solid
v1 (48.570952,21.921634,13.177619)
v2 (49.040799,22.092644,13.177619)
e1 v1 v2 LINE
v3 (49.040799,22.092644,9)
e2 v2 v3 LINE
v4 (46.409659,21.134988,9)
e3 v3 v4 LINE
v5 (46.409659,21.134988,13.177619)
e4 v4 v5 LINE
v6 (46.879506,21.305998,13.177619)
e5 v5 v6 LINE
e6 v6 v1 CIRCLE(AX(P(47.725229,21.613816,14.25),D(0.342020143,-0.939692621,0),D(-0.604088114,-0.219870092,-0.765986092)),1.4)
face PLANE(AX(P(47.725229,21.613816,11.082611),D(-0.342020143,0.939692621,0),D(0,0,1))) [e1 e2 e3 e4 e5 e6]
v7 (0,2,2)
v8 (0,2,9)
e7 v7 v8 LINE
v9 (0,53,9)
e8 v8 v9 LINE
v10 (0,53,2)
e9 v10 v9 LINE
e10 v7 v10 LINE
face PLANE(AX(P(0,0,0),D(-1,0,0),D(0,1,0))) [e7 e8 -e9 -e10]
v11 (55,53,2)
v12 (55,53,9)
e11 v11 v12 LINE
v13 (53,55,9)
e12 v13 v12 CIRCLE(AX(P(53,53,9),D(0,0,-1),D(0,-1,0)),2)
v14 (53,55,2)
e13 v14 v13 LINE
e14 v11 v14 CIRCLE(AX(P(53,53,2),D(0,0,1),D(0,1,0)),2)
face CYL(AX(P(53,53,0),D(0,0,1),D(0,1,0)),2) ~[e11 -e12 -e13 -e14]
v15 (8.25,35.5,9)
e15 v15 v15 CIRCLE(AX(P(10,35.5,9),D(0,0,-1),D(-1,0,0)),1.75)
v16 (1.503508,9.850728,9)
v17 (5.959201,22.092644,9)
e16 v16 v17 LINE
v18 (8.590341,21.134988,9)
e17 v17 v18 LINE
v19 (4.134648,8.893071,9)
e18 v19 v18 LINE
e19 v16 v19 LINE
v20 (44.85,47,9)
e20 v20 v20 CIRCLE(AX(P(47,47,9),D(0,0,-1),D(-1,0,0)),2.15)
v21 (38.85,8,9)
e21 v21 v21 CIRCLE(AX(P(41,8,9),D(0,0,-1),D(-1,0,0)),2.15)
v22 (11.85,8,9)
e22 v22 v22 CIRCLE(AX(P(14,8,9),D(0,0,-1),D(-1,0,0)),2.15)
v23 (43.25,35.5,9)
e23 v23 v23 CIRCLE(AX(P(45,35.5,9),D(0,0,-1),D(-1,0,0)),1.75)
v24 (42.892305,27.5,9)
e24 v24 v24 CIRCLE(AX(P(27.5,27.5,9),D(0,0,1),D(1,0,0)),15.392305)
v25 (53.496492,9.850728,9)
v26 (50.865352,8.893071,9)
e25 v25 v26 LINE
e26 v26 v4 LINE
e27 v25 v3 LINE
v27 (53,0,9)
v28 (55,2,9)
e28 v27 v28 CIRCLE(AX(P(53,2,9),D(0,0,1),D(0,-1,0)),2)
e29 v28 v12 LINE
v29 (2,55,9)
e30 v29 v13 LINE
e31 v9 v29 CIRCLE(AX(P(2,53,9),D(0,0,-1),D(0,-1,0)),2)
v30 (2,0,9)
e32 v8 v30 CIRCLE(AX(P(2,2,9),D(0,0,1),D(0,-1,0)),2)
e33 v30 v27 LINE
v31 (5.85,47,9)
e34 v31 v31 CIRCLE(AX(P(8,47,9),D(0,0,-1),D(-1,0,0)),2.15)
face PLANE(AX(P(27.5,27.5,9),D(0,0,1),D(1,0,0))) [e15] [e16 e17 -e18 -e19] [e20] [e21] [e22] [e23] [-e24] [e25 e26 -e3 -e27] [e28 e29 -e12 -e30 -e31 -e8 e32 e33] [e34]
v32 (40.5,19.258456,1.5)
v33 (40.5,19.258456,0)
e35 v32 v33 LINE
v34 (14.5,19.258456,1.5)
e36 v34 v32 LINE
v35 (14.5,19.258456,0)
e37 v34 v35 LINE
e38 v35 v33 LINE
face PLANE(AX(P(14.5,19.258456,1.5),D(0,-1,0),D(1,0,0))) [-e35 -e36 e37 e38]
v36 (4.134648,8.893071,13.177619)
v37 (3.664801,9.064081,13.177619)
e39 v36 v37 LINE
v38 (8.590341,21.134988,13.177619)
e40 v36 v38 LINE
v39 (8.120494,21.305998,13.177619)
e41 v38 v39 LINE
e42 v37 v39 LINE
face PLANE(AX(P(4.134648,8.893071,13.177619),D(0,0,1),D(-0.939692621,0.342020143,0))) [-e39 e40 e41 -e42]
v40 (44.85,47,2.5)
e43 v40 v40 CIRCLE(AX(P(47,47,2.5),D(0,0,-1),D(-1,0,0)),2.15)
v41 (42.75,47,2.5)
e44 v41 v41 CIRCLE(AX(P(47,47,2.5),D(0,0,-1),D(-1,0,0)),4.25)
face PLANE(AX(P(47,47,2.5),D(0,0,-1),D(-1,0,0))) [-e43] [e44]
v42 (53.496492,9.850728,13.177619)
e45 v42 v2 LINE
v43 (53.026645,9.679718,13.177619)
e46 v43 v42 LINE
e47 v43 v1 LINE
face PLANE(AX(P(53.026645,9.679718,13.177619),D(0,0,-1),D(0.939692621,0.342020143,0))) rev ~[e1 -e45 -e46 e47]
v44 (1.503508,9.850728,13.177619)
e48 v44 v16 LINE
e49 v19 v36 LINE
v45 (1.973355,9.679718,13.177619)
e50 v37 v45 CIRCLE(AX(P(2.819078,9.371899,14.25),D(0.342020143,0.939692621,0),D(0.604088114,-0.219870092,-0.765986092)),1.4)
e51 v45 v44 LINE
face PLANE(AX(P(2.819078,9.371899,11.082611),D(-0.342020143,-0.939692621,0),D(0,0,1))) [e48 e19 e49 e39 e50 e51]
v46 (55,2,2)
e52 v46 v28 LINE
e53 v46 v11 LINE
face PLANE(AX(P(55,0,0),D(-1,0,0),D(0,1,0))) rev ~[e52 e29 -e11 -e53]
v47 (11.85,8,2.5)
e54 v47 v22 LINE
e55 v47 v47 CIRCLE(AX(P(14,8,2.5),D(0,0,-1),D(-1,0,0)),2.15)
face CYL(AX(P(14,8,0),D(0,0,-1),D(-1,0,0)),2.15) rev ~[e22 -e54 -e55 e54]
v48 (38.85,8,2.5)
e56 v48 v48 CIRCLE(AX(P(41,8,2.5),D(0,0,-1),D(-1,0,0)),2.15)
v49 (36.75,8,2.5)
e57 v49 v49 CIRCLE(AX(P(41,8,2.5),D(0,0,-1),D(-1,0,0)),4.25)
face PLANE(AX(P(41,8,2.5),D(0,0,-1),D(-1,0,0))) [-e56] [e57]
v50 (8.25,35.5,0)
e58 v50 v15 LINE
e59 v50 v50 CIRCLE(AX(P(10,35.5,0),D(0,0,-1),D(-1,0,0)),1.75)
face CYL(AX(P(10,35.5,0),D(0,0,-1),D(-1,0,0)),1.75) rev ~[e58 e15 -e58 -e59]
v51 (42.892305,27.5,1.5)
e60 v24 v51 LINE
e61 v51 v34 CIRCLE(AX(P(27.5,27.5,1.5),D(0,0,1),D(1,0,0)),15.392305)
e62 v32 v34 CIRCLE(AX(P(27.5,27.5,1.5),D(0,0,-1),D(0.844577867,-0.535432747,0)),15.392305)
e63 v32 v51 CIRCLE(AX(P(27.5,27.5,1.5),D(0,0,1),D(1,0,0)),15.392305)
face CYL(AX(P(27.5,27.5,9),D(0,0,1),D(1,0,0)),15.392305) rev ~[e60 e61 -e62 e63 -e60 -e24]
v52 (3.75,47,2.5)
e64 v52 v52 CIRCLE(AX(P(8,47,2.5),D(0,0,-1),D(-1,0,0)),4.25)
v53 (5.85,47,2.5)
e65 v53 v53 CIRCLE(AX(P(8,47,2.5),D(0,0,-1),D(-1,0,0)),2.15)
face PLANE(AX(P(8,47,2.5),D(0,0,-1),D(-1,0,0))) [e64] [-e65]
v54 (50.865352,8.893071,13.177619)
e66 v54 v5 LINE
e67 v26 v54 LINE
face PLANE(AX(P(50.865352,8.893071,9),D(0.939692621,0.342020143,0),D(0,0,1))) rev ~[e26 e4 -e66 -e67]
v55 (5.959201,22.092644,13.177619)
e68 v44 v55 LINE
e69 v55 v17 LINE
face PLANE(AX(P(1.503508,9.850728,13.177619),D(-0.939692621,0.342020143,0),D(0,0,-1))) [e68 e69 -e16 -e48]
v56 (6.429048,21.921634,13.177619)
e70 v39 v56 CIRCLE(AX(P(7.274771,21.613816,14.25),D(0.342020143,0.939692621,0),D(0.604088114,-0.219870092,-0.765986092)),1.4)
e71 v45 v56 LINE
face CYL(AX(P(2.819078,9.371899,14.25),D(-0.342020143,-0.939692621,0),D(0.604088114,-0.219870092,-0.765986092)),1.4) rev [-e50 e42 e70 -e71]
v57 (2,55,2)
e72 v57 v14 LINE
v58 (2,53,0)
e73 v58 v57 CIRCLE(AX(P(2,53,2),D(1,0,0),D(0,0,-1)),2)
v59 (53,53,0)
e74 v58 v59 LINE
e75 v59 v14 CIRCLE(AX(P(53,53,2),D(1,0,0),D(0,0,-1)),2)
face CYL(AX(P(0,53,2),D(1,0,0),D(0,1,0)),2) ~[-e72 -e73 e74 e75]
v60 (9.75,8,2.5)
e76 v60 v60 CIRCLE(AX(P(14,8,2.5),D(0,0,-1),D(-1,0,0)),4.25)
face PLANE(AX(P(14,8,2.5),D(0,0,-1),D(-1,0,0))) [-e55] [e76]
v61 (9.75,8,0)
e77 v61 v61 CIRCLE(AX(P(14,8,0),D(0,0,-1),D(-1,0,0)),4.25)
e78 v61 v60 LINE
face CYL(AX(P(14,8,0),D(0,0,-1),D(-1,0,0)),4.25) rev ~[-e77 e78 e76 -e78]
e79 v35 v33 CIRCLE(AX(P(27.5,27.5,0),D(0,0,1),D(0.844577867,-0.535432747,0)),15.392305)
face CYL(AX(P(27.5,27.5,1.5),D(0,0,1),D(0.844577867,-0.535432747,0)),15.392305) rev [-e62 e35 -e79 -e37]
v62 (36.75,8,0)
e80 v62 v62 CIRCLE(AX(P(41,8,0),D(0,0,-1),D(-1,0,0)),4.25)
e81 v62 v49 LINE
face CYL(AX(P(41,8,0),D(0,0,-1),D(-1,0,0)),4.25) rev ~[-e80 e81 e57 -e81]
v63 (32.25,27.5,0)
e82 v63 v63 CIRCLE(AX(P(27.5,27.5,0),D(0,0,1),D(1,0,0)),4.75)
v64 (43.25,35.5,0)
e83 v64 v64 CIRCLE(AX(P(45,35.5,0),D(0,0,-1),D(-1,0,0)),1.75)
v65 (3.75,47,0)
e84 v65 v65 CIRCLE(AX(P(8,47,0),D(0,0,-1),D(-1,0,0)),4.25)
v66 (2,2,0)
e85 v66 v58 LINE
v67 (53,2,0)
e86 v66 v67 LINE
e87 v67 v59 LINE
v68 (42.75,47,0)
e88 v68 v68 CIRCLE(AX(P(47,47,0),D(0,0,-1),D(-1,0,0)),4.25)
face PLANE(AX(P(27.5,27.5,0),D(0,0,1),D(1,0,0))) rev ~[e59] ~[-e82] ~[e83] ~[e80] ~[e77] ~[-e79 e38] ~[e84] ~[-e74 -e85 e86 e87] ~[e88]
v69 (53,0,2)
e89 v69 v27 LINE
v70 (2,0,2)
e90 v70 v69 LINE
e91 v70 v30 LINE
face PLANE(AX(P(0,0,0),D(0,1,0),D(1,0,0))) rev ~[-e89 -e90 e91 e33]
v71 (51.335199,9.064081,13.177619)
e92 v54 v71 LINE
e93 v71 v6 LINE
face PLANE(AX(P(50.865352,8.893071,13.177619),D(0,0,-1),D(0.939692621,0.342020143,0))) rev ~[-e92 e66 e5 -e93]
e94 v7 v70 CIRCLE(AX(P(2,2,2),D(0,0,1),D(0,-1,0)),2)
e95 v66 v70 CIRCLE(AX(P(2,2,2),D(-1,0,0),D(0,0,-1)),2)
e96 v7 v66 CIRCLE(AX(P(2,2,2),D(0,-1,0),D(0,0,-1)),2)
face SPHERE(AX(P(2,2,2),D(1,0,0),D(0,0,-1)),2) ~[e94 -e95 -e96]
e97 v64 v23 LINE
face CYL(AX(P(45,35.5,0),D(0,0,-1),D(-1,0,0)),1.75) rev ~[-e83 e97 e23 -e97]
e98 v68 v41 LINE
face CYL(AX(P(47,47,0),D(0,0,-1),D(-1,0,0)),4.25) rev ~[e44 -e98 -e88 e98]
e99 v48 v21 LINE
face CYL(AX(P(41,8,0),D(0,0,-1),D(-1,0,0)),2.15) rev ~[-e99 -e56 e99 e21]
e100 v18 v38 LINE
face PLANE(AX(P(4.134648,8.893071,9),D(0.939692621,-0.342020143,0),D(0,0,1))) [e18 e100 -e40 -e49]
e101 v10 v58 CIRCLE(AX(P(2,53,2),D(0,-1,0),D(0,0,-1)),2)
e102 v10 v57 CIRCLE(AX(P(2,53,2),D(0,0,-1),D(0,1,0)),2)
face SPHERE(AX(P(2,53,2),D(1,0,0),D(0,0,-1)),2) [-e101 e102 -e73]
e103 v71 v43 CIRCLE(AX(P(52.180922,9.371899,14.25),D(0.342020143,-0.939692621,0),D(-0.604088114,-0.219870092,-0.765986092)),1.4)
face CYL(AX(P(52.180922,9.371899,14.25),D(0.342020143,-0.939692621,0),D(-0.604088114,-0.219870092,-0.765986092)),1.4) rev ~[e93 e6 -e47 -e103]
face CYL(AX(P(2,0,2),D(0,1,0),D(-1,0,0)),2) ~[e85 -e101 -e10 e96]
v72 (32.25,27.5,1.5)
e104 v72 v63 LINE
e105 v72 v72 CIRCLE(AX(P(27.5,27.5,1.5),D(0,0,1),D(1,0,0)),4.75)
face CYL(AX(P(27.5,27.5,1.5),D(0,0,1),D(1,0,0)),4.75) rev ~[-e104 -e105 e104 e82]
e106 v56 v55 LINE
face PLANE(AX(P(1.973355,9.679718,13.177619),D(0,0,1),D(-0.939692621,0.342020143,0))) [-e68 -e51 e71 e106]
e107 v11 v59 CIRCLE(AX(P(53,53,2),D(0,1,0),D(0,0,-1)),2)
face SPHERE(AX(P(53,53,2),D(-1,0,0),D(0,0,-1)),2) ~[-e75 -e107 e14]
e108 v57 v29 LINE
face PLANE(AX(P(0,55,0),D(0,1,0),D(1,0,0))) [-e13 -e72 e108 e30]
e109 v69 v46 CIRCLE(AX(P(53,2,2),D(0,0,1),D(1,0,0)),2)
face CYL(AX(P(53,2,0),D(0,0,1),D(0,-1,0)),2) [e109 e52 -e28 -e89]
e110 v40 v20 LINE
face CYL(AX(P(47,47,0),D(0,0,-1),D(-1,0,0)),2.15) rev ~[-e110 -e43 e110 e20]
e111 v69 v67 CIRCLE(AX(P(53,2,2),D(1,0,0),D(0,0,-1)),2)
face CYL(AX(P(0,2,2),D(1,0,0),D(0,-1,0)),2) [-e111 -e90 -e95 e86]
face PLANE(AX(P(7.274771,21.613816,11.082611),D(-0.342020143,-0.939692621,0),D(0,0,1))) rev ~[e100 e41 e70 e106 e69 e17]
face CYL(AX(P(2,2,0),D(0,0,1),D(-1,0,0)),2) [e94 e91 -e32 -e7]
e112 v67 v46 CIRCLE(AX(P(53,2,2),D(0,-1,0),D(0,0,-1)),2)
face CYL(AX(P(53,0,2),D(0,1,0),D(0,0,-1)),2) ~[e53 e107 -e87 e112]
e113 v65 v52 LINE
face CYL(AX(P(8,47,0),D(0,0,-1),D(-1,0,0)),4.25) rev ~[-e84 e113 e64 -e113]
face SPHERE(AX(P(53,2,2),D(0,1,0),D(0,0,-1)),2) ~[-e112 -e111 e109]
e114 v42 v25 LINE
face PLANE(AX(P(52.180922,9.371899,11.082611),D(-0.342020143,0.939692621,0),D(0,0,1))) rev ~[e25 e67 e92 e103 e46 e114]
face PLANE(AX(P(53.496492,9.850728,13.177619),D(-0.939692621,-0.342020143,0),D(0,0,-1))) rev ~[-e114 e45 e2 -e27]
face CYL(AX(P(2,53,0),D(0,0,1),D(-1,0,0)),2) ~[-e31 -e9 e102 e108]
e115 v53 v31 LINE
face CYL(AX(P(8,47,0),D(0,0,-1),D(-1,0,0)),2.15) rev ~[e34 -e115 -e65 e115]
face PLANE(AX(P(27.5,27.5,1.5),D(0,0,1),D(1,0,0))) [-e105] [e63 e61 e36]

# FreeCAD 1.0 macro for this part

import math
import FreeCAD as App
import Part
import Sketcher

V = App.Vector


def edges_at(feature, points):
    """Names of the edges that pass closest to the given points."""
    edges = feature.Shape.Edges
    near = lambda p: min(range(len(edges)), key=lambda i: edges[i].distToShape(Part.Vertex(*p))[0])
    return sorted({f"Edge{near(p) + 1}" for p in points})

doc = App.newDocument("Part")
body = doc.addObject("PartDesign::Body", "Body")

sketch1 = body.newObject("Sketcher::SketchObject", "Sketch")
sketch1.AttachmentSupport = (doc.getObject("XY_Plane"), [""])
sketch1.MapMode = "FlatFace"
sketch1.addGeometry([
    Part.LineSegment(V(0, 55, 0), V(0, 0, 0)),
    Part.LineSegment(V(0, 0, 0), V(55, 0, 0)),
    Part.LineSegment(V(55, 0, 0), V(55, 55, 0)),
    Part.LineSegment(V(55, 55, 0), V(0, 55, 0)),
], False)
sketch1.addConstraint([
    Sketcher.Constraint("Coincident", 0, 2, 1, 1),
    Sketcher.Constraint("Coincident", 1, 2, 2, 1),
    Sketcher.Constraint("Coincident", 2, 2, 3, 1),
    Sketcher.Constraint("Coincident", 3, 2, 0, 1),
    Sketcher.Constraint("Vertical", 0),
    Sketcher.Constraint("Horizontal", 1),
    Sketcher.Constraint("Vertical", 2),
    Sketcher.Constraint("Horizontal", 3),
    Sketcher.Constraint("Coincident", 0, 2, -1, 1),
    Sketcher.Constraint("Equal", 3, 0),
    Sketcher.Constraint("DistanceX", 1, 1, 1, 2, 55.0),
])
pad1 = body.newObject("PartDesign::Pad", "Pad")
pad1.Profile = sketch1
pad1.Length = 9

sketch2 = body.newObject("Sketcher::SketchObject", "Sketch001")
sketch2.AttachmentSupport = (doc.getObject("XY_Plane"), [""])
sketch2.MapMode = "FlatFace"
sketch2.addGeometry([
    Part.Circle(V(45, 35.5, 0), V(0, 0, 1), 1.8),
    Part.Circle(V(47, 47, 0), V(0, 0, 1), 2.1),
    Part.Circle(V(8, 47, 0), V(0, 0, 1), 2.1),
    Part.Circle(V(14, 8, 0), V(0, 0, 1), 2.1),
    Part.Circle(V(41, 8, 0), V(0, 0, 1), 2.1),
    Part.Circle(V(10, 35.5, 0), V(0, 0, 1), 1.8),
], False)
sketch2.addConstraint([
    Sketcher.Constraint("Equal", 1, 2),
    Sketcher.Constraint("Equal", 2, 3),
    Sketcher.Constraint("Equal", 3, 4),
    Sketcher.Constraint("Equal", 0, 5),
    Sketcher.Constraint("Horizontal", 1, 3, 2, 3),
    Sketcher.Constraint("Horizontal", 3, 3, 4, 3),
    Sketcher.Constraint("Horizontal", 0, 3, 5, 3),
    Sketcher.Constraint("Diameter", 0, 3.5),
    Sketcher.Constraint("Diameter", 1, 4.3),
    Sketcher.Constraint("DistanceX", -1, 1, 0, 3, 45.0),
    Sketcher.Constraint("DistanceX", -1, 1, 1, 3, 47.0),
    Sketcher.Constraint("DistanceY", -1, 1, 1, 3, 47.0),
    Sketcher.Constraint("DistanceX", -1, 1, 2, 3, 8.0),
    Sketcher.Constraint("DistanceX", -1, 1, 3, 3, 14.0),
    Sketcher.Constraint("DistanceY", -1, 1, 3, 3, 8.0),
    Sketcher.Constraint("DistanceX", -1, 1, 4, 3, 41.0),
    Sketcher.Constraint("DistanceX", -1, 1, 5, 3, 10.0),
    Sketcher.Constraint("DistanceY", -1, 1, 0, 3, 35.5),
])
pocket1 = body.newObject("PartDesign::Pocket", "Pocket")
pocket1.Profile = sketch2
pocket1.Type = "ThroughAll"
pocket1.Reversed = True
doc.recompute()

fillet = body.newObject("PartDesign::Fillet", "Fillet")
fillet.Base = (pocket1, edges_at(pocket1, [
    (27.5, 55, 0),
    (55, 27.5, 0),
    (27.5, 0, 0),
    (0, 27.5, 0),
    (0, 55, 4.5),
    (55, 55, 4.5),
    (55, 0, 4.5),
    (0, 0, 4.5),
]))
fillet.Radius = 2

sketch3 = body.newObject("Sketcher::SketchObject", "Sketch002")
sketch3.AttachmentSupport = (doc.getObject("XY_Plane"), [""])
sketch3.MapMode = "FlatFace"
sketch3.addGeometry([
    Part.Circle(V(47, 47, 0), V(0, 0, 1), 4.2),
    Part.Circle(V(8, 47, 0), V(0, 0, 1), 4.2),
    Part.Circle(V(14, 8, 0), V(0, 0, 1), 4.2),
    Part.Circle(V(41, 8, 0), V(0, 0, 1), 4.2),
], False)
sketch3.addConstraint([
    Sketcher.Constraint("Equal", 0, 1),
    Sketcher.Constraint("Equal", 1, 2),
    Sketcher.Constraint("Equal", 2, 3),
    Sketcher.Constraint("Horizontal", 0, 3, 1, 3),
    Sketcher.Constraint("Horizontal", 2, 3, 3, 3),
    Sketcher.Constraint("Diameter", 0, 8.5),
    Sketcher.Constraint("DistanceX", -1, 1, 0, 3, 47.0),
    Sketcher.Constraint("DistanceY", -1, 1, 0, 3, 47.0),
    Sketcher.Constraint("DistanceX", -1, 1, 1, 3, 8.0),
    Sketcher.Constraint("DistanceX", -1, 1, 2, 3, 14.0),
    Sketcher.Constraint("DistanceY", -1, 1, 2, 3, 8.0),
    Sketcher.Constraint("DistanceX", -1, 1, 3, 3, 41.0),
])
pocket2 = body.newObject("PartDesign::Pocket", "Pocket001")
pocket2.Profile = sketch3
pocket2.Length = 2.5
pocket2.Reversed = True

sketch4 = body.newObject("Sketcher::SketchObject", "Sketch003")
sketch4.Placement = App.Placement(V(3.091938, -8.49503, 0), App.Rotation(V(0, 0, 1), V(0.939692621, 0.342020143, 0), V(-0.342020143, 0.939692621, 0), "ZXY"))
sketch4.addGeometry([
    Part.LineSegment(V(13.2, 53.6, 0), V(9, 53.6, 0)),
    Part.LineSegment(V(9, 53.6, 0), V(9, 50.8, 0)),
    Part.LineSegment(V(9, 50.8, 0), V(13.2, 50.8, 0)),
    Part.LineSegment(V(13.2, 50.8, 0), V(13.2, 51.3, 0)),
    Part.ArcOfCircle(Part.Circle(V(14.2, 52.2, 0), V(0, 0, 1), 1.4), math.radians(140), math.radians(220)),
    Part.LineSegment(V(13.2, 53.1, 0), V(13.2, 53.6, 0)),
], False)
sketch4.addConstraint([
    Sketcher.Constraint("Coincident", 0, 2, 1, 1),
    Sketcher.Constraint("Coincident", 1, 2, 2, 1),
    Sketcher.Constraint("Coincident", 2, 2, 3, 1),
    Sketcher.Constraint("Coincident", 3, 2, 4, 2),
    Sketcher.Constraint("Coincident", 4, 1, 5, 1),
    Sketcher.Constraint("Coincident", 5, 2, 0, 1),
    Sketcher.Constraint("Horizontal", 0),
    Sketcher.Constraint("Vertical", 1),
    Sketcher.Constraint("Horizontal", 2),
    Sketcher.Constraint("Vertical", 3),
    Sketcher.Constraint("Vertical", 5),
    Sketcher.Constraint("Vertical", 3, 2, 4, 1),
    Sketcher.Constraint("Equal", 3, 5),
    Sketcher.Constraint("Radius", 4, 1.4),
    Sketcher.Constraint("DistanceY", 1, 2, 1, 1, 2.8),
    Sketcher.Constraint("DistanceY", 3, 1, 3, 2, 0.5),
    Sketcher.Constraint("DistanceX", -1, 1, 0, 2, 9.0),
    Sketcher.Constraint("DistanceX", -1, 1, 4, 3, 14.25),
    Sketcher.Constraint("DistanceY", -1, 1, 4, 3, 52.239406),
])
pad2 = body.newObject("PartDesign::Pad", "Pad001")
pad2.Profile = sketch4
pad2.Length = 13.027575

sketch5 = body.newObject("Sketcher::SketchObject", "Sketch004")
sketch5.Placement = App.Placement(V(3.34184, 9.18163, 0), App.Rotation(V(0, 0, 1), V(-0.939692621, 0.342020143, 0), V(-0.342020143, -0.939692621, 0), "ZXY"))
sketch5.addGeometry([
    Part.LineSegment(V(13.2, 2, 0), V(9, 2, 0)),
    Part.LineSegment(V(9, 2, 0), V(9, -0.8, 0)),
    Part.LineSegment(V(9, -0.8, 0), V(13.2, -0.8, 0)),
    Part.LineSegment(V(13.2, -0.8, 0), V(13.2, -0.3, 0)),
    Part.ArcOfCircle(Part.Circle(V(14.2, 0.6, 0), V(0, 0, 1), 1.4), math.radians(140), math.radians(220)),
    Part.LineSegment(V(13.2, 1.5, 0), V(13.2, 2, 0)),
], False)
sketch5.addConstraint([
    Sketcher.Constraint("Coincident", 0, 2, 1, 1),
    Sketcher.Constraint("Coincident", 1, 2, 2, 1),
    Sketcher.Constraint("Coincident", 2, 2, 3, 1),
    Sketcher.Constraint("Coincident", 3, 2, 4, 2),
    Sketcher.Constraint("Coincident", 4, 1, 5, 1),
    Sketcher.Constraint("Coincident", 5, 2, 0, 1),
    Sketcher.Constraint("Horizontal", 0),
    Sketcher.Constraint("Vertical", 1),
    Sketcher.Constraint("Horizontal", 2),
    Sketcher.Constraint("Vertical", 3),
    Sketcher.Constraint("Vertical", 5),
    Sketcher.Constraint("Vertical", 3, 2, 4, 1),
    Sketcher.Constraint("Equal", 3, 5),
    Sketcher.Constraint("Radius", 4, 1.4),
    Sketcher.Constraint("DistanceY", 1, 2, 1, 1, 2.8),
    Sketcher.Constraint("DistanceY", 3, 1, 3, 2, 0.5),
    Sketcher.Constraint("DistanceX", -1, 1, 0, 2, 9.0),
    Sketcher.Constraint("DistanceX", -1, 1, 4, 3, 14.25),
    Sketcher.Constraint("DistanceY", -1, 1, 4, 3, 0.556312),
])
pad3 = body.newObject("PartDesign::Pad", "Pad002")
pad3.Profile = sketch5
pad3.Length = 13.027575
pad3.Reversed = True

sketch6 = body.newObject("Sketcher::SketchObject", "Sketch005")
sketch6.AttachmentSupport = (doc.getObject("XY_Plane"), [""])
sketch6.MapMode = "FlatFace"
sketch6.AttachmentOffset = App.Placement(V(0, 0, 9), App.Rotation())
sketch6.addGeometry(Part.Circle(V(28, 28, 0), V(0, 0, 1), 15), False)
sketch6.addConstraint([
    Sketcher.Constraint("DistanceX", -1, 1, 0, 3, 27.5),
    Sketcher.Constraint("DistanceY", -1, 1, 0, 3, 27.5),
    Sketcher.Constraint("Diameter", 0, 30.78461),
])
pocket3 = body.newObject("PartDesign::Pocket", "Pocket002")
pocket3.Profile = sketch6
pocket3.Length = 7.5

sketch7 = body.newObject("Sketcher::SketchObject", "Sketch006")
sketch7.AttachmentSupport = (doc.getObject("XY_Plane"), [""])
sketch7.MapMode = "FlatFace"
sketch7.AttachmentOffset = App.Placement(V(0, 0, 1.5), App.Rotation())
sketch7.addGeometry(Part.Circle(V(27.5, 27.5, 0), V(0, 0, 1), 4.8), False)
sketch7.addConstraint([
    Sketcher.Constraint("Diameter", 0, 9.5),
    Sketcher.Constraint("DistanceX", -1, 1, 0, 3, 27.5),
    Sketcher.Constraint("DistanceY", -1, 1, 0, 3, 27.5),
])
pocket4 = body.newObject("PartDesign::Pocket", "Pocket003")
pocket4.Profile = sketch7
pocket4.Type = "ThroughAll"

sketch8 = body.newObject("Sketcher::SketchObject", "Sketch007")
sketch8.AttachmentSupport = (doc.getObject("XY_Plane"), [""])
sketch8.MapMode = "FlatFace"
sketch8.AttachmentOffset = App.Placement(V(0, 0, 1.5), App.Rotation())
sketch8.addGeometry([
    Part.LineSegment(V(40, 19, 0), V(14, 19, 0)),
    Part.ArcOfCircle(Part.Circle(V(28, 28, 0), V(0, 0, 1), 15), math.radians(-148), math.radians(-32)),
], False)
sketch8.addConstraint([
    Sketcher.Constraint("Coincident", 0, 1, 1, 2),
    Sketcher.Constraint("Coincident", 1, 1, 0, 2),
    Sketcher.Constraint("Horizontal", 0),
    Sketcher.Constraint("DistanceX", 0, 2, 0, 1, 26.0),
    Sketcher.Constraint("DistanceX", -1, 1, 1, 3, 27.5),
    Sketcher.Constraint("DistanceY", -1, 1, 1, 3, 27.5),
    Sketcher.Constraint("Radius", 1, 15.392305),
])
pocket5 = body.newObject("PartDesign::Pocket", "Pocket004")
pocket5.Profile = sketch8
pocket5.Type = "ThroughAll"

doc.recompute()
